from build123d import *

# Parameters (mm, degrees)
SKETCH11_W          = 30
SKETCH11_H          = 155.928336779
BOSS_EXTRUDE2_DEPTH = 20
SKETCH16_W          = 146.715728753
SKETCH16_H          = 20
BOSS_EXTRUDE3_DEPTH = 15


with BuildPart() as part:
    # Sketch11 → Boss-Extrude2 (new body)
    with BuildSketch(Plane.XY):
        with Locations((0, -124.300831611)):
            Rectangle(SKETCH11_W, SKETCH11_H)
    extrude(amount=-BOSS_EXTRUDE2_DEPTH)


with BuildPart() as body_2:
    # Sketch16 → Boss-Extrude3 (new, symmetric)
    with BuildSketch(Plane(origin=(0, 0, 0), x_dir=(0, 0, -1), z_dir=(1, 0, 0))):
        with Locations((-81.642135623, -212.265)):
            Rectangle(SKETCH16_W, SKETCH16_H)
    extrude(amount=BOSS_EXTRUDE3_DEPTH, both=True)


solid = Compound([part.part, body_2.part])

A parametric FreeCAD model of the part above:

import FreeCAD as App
import Part
import Sketcher
from FreeCAD import Vector


def add_polygon(sketch, points):
    """Adds a closed chain of lines whose ends are joined by coincident constraints."""
    first, n = sketch.GeometryCount, len(points)
    for a, b in zip(points, points[1:] + points[:1]):
        sketch.addGeometry(Part.LineSegment(App.Vector(*a, 0), App.Vector(*b, 0)), False)
    for i in range(n):
        sketch.addConstraint(Sketcher.Constraint("Coincident", first + i, 2, first + (i + 1) % n, 1))

doc = App.newDocument("Part")
body = doc.addObject("PartDesign::Body", "Body")

sketch1 = body.newObject("Sketcher::SketchObject", "Sketch")
sketch1.AttachmentSupport = (doc.getObject("XY_Plane"), [""])
sketch1.MapMode = "FlatFace"
add_polygon(sketch1, [(-15, -46), (-15, -202), (15, -202), (15, -46)])
sketch1.addConstraint([
    Sketcher.Constraint("Vertical", 0),
    Sketcher.Constraint("Horizontal", 1),
    Sketcher.Constraint("Vertical", 2),
    Sketcher.Constraint("Horizontal", 3),
    Sketcher.Constraint("DistanceX", 1, 1, 1, 2, 30.0),
    Sketcher.Constraint("DistanceX", 0, 2, -1, 1, 15.0),
    Sketcher.Constraint("DistanceY", 0, 2, -1, 1, 202.265),
    Sketcher.Constraint("DistanceY", 0, 2, 0, 1, 155.928337),
])
pad1 = body.newObject("PartDesign::Pad", "Pad")
pad1.Profile = sketch1
pad1.Length = 20
pad1.Reversed = True
body2 = doc.addObject("PartDesign::Body", "Body001")

sketch2 = body2.newObject("Sketcher::SketchObject", "Sketch001")
sketch2.AttachmentSupport = (doc.getObject("YZ_Plane001"), [""])
sketch2.MapMode = "FlatFace"
add_polygon(sketch2, [(-202, 155), (-222, 155), (-222, 8), (-202, 8)])
sketch2.addConstraint([
    Sketcher.Constraint("Horizontal", 0),
    Sketcher.Constraint("Vertical", 1),
    Sketcher.Constraint("Horizontal", 2),
    Sketcher.Constraint("Vertical", 3),
    Sketcher.Constraint("DistanceX", 0, 2, 0, 1, 20.0),
    Sketcher.Constraint("DistanceY", -1, 1, 0, 2, 155.0),
    Sketcher.Constraint("DistanceX", 0, 2, -1, 1, 222.265),
    Sketcher.Constraint("DistanceY", 1, 2, 1, 1, 146.715729),
])
pad2 = body2.newObject("PartDesign::Pad", "Pad001")
pad2.Profile = sketch2
pad2.Length = 30
pad2.Midplane = True

doc.recompute()
